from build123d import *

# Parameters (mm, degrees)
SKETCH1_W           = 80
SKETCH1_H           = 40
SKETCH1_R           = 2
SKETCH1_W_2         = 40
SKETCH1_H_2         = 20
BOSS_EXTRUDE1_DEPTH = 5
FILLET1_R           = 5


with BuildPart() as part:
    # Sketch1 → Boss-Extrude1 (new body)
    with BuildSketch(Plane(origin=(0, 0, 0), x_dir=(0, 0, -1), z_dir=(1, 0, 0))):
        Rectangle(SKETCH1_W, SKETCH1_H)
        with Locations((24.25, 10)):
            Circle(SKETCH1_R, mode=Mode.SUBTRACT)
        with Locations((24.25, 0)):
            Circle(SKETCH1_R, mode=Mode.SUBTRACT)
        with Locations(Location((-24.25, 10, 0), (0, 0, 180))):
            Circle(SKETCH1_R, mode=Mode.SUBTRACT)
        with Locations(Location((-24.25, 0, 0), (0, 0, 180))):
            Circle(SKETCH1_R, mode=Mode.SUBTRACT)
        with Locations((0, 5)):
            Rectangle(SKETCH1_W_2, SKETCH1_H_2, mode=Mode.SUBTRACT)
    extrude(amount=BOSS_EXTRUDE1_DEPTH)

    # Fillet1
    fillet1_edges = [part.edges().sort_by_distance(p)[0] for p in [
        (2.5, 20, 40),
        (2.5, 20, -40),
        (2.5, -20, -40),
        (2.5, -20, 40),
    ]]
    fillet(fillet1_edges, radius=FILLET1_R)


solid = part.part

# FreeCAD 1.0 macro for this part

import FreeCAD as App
import Part
import Sketcher

V = App.Vector
Q = App.Units.Quantity


def edges_at(feature, points):
    """Names of the edges that pass closest to the given points."""
    edges = feature.Shape.Edges
    near = lambda p: min(range(len(edges)), key=lambda i: edges[i].distToShape(Part.Vertex(*p))[0])
    return sorted({f"Edge{near(p) + 1}" for p in points})


def add_polygon(sketch, points):
    """Adds a closed chain of lines whose ends are joined by coincident constraints."""
    first, n = sketch.GeometryCount, len(points)
    for a, b in zip(points, points[1:] + points[:1]):
        sketch.addGeometry(Part.LineSegment(App.Vector(*a, 0), App.Vector(*b, 0)), False)
    for i in range(n):
        sketch.addConstraint(Sketcher.Constraint("Coincident", first + i, 2, first + (i + 1) % n, 1))

doc = App.newDocument("Part")
body = doc.addObject("PartDesign::Body", "Body")

# Sketch on YZ plane
sketch1 = body.newObject("Sketcher::SketchObject", "Sketch")
sketch1.AttachmentSupport = (doc.getObject("YZ_Plane"), [""])
sketch1.MapMode = "FlatFace"
add_polygon(sketch1, [(20, 40), (-20, 40), (-20, -40), (20, -40)])  # lines 0-3
sketch1.addGeometry(Part.Circle(V(0, 24.2, 0), V(0, 0, 1), 2), False)  # 4
sketch1.addGeometry(Part.Circle(V(0, -24.2, 0), V(0, 0, 1), 2), False)  # 5
sketch1.addGeometry(Part.Circle(V(10, 24.2, 0), V(0, 0, 1), 2), False)  # 6
add_polygon(sketch1, [(-5, -20), (-5, 20), (15, 20), (15, -20)])  # lines 7-10
sketch1.addGeometry(Part.Circle(V(10, -24.2, 0), V(0, 0, 1), 2), False)  # 11
sketch1.addConstraint([
    Sketcher.Constraint("Horizontal", 0),
    Sketcher.Constraint("Vertical", 1),
    Sketcher.Constraint("Horizontal", 2),
    Sketcher.Constraint("Vertical", 3),
    Sketcher.Constraint("Vertical", 7),
    Sketcher.Constraint("Horizontal", 8),
    Sketcher.Constraint("Vertical", 9),
    Sketcher.Constraint("Horizontal", 10),
    Sketcher.Constraint("Equal", 4, 5),
    Sketcher.Constraint("Equal", 5, 6),
    Sketcher.Constraint("Equal", 6, 11),
    Sketcher.Constraint("Symmetric", 4, 3, 5, 3, -1, 1),
    Sketcher.Constraint("Symmetric", 0, 2, 2, 2, -1, 1),
    Sketcher.Constraint("Symmetric", 6, 3, 11, 3, -1),
    Sketcher.Constraint("PointOnObject", 4, 3, -2),
    Sketcher.Constraint("Horizontal", 4, 3, 6, 3),
    Sketcher.Constraint("Equal", 2, 7),
    Sketcher.Constraint("Diameter", 4, Q("4 mm")),
    Sketcher.Constraint("DistanceX", 0, 2, 0, 1, Q("40 mm")),
    Sketcher.Constraint("DistanceX", 8, 1, 8, 2, Q("20 mm")),
    Sketcher.Constraint("DistanceY", 1, 2, 1, 1, Q("80 mm")),
    Sketcher.Constraint("DistanceX", -1, 1, 6, 3, Q("10 mm")),
    Sketcher.Constraint("DistanceX", 7, 2, -1, 1, Q("5 mm")),
    Sketcher.Constraint("DistanceY", -1, 1, 7, 2, Q("20 mm")),
    Sketcher.Constraint("DistanceY", 5, 3, 4, 3, Q("48.5 mm")),
])
pad1 = body.newObject("PartDesign::Pad", "Pad")
pad1.Profile = sketch1
pad1.Length = 5
doc.recompute()

fillet = body.newObject("PartDesign::Fillet", "Fillet")
fillet.Base = (pad1, edges_at(pad1, [
    (2.5, 20, 40),
    (2.5, 20, -40),
    (2.5, -20, -40),
    (2.5, -20, 40),
]))
fillet.Radius = 5

doc.recompute()
